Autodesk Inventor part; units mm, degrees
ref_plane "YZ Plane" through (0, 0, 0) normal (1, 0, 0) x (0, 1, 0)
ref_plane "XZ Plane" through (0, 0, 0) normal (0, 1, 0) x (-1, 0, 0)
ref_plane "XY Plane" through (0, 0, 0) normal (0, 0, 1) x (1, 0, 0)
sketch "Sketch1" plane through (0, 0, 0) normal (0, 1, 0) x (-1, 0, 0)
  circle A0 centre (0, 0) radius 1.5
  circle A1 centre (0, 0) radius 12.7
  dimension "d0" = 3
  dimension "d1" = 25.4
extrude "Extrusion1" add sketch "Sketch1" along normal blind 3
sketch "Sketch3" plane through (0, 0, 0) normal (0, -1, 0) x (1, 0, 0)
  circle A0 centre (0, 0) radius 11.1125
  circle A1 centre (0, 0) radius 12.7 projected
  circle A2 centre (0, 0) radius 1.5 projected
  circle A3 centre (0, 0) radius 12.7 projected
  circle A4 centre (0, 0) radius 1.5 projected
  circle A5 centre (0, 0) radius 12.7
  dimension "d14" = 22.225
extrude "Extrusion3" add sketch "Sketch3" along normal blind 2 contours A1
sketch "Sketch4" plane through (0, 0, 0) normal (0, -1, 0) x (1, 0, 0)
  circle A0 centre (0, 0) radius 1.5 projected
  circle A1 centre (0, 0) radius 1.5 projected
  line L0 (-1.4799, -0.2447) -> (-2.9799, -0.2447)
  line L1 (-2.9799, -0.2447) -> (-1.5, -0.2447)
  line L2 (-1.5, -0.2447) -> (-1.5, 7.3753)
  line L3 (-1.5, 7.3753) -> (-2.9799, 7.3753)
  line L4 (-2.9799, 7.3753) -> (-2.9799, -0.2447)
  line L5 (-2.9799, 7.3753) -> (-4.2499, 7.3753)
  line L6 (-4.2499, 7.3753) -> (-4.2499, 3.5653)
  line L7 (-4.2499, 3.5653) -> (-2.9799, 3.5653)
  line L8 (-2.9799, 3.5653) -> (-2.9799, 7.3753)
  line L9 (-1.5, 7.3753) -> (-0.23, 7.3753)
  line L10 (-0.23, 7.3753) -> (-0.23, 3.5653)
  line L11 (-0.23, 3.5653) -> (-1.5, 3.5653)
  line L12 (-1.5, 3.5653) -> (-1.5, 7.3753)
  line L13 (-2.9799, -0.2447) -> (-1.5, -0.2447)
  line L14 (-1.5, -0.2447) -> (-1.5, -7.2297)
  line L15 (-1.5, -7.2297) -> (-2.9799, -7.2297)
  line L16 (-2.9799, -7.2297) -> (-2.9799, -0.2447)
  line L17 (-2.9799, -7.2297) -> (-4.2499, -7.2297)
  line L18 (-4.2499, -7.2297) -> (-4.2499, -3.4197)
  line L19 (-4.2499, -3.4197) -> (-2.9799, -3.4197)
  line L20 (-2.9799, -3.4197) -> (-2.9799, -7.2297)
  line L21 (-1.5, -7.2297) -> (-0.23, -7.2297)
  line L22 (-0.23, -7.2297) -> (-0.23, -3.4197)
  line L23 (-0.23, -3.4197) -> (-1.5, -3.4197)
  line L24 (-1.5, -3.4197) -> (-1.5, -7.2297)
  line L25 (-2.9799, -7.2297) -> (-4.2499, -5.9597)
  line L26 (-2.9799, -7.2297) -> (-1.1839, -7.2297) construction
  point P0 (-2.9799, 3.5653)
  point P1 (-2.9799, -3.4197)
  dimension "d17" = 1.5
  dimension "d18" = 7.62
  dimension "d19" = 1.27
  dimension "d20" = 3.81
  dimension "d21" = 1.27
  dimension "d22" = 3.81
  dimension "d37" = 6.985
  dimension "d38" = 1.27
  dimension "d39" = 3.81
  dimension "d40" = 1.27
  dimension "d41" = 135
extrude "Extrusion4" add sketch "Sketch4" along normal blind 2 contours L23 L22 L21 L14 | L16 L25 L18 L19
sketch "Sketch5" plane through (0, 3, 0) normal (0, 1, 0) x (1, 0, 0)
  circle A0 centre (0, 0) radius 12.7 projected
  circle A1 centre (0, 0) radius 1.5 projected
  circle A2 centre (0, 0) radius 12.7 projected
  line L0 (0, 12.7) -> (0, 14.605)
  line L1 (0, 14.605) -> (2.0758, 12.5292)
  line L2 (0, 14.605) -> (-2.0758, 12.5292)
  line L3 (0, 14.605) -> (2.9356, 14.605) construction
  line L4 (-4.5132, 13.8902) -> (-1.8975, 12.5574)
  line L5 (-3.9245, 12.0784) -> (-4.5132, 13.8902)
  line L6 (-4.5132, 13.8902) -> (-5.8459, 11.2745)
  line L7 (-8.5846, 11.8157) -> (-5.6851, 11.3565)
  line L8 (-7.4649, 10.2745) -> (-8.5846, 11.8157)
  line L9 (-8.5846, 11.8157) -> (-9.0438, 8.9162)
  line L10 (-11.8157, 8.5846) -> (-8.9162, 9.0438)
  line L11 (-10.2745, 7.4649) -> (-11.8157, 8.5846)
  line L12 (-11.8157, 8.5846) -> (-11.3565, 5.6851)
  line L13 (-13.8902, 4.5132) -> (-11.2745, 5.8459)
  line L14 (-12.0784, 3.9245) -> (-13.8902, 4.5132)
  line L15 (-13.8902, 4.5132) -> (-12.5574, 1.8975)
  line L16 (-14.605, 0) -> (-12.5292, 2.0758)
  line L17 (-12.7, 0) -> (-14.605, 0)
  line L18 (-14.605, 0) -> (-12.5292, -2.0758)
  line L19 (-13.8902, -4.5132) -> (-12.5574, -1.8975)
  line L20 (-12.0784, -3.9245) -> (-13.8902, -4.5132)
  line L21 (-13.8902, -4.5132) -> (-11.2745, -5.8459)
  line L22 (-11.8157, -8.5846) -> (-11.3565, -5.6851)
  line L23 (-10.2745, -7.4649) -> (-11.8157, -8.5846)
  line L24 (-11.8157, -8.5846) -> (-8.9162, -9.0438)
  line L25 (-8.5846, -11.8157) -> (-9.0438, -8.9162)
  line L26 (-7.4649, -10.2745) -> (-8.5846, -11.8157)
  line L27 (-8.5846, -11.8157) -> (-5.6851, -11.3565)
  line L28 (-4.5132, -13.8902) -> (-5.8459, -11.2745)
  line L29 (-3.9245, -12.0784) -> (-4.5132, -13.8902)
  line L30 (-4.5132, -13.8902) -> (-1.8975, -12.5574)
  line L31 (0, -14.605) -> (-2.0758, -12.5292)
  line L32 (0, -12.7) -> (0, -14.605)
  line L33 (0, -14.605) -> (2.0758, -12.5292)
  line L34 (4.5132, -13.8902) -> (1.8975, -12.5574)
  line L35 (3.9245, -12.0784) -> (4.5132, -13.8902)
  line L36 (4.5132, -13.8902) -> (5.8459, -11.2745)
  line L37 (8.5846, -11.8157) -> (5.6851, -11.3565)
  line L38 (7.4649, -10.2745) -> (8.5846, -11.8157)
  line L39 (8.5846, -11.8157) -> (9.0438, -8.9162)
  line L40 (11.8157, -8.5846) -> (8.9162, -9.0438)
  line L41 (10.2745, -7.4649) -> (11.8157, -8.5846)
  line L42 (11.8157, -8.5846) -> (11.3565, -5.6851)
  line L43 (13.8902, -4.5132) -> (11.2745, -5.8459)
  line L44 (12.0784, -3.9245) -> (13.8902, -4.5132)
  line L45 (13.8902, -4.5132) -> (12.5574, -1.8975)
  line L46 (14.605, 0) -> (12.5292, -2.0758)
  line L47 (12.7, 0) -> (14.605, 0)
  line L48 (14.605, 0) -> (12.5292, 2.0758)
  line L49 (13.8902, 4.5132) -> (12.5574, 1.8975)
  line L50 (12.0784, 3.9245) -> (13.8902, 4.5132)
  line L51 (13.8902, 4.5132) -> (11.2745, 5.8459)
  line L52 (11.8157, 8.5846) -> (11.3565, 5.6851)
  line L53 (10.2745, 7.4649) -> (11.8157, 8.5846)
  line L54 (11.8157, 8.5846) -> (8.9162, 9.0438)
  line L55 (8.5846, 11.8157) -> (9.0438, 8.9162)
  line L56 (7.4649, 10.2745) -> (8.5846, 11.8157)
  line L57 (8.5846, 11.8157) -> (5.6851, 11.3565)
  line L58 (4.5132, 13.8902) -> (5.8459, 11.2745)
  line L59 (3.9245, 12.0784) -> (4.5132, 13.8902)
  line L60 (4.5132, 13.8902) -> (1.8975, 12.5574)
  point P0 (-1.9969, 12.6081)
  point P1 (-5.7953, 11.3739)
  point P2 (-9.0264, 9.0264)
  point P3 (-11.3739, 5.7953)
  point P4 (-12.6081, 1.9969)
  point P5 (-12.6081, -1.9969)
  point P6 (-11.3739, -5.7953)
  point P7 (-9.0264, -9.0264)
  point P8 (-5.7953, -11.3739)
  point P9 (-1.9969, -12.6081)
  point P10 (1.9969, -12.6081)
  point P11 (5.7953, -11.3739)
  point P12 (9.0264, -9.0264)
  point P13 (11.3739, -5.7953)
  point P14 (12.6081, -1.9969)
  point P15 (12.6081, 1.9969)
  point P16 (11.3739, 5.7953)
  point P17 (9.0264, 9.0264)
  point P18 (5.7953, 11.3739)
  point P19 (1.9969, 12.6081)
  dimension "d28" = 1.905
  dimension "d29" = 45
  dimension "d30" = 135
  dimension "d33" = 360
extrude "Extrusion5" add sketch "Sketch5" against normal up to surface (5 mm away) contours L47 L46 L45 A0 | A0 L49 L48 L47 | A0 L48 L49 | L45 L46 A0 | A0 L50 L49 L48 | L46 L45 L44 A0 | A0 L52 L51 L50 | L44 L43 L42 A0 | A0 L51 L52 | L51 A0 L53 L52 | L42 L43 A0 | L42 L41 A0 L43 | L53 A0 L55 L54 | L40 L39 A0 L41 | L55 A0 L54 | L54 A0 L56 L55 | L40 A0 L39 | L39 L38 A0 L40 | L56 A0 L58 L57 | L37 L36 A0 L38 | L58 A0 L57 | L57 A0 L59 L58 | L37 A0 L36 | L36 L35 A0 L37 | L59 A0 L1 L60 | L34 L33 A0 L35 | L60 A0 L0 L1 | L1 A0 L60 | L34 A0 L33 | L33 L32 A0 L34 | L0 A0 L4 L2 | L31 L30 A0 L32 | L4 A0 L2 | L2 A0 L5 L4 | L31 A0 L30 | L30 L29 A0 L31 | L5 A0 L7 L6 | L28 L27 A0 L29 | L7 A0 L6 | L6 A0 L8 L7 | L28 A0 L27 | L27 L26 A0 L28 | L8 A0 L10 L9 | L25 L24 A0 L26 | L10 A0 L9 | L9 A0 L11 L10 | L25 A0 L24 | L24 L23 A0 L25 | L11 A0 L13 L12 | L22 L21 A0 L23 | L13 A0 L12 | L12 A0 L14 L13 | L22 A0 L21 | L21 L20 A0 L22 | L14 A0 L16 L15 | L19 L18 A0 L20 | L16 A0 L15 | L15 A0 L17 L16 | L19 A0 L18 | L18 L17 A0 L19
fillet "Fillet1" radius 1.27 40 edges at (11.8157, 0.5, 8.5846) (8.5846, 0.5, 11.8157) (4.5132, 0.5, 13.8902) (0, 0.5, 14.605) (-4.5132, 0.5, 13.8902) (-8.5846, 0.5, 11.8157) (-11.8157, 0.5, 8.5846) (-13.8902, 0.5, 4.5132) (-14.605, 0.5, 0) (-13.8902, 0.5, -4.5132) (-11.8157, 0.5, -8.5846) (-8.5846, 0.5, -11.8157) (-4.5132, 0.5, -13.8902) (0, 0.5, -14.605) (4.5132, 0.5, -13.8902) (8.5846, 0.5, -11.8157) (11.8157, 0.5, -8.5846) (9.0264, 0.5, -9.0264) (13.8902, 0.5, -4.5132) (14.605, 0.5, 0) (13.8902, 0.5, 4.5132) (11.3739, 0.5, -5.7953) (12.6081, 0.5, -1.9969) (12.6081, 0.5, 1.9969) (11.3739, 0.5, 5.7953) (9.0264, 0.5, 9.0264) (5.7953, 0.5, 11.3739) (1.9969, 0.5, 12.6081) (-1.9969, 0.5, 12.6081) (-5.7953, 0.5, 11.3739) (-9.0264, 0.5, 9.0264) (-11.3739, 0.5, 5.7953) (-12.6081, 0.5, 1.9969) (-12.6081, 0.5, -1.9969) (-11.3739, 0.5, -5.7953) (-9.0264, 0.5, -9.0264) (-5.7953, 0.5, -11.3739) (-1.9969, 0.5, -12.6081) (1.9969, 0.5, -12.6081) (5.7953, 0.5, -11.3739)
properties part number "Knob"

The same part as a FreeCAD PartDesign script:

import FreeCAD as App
import Part
import Sketcher
from FreeCAD import Vector
Q = App.Units.Quantity


def edges_at(feature, points):
    """Names of the edges that pass closest to the given points."""
    edges = feature.Shape.Edges
    near = lambda p: min(range(len(edges)), key=lambda i: edges[i].distToShape(Part.Vertex(*p))[0])
    return sorted({f"Edge{near(p) + 1}" for p in points})


def add_polygon(sketch, points):
    """Adds a closed chain of lines whose ends are joined by coincident constraints."""
    first, n = sketch.GeometryCount, len(points)
    for a, b in zip(points, points[1:] + points[:1]):
        sketch.addGeometry(Part.LineSegment(App.Vector(*a, 0), App.Vector(*b, 0)), False)
    for i in range(n):
        sketch.addConstraint(Sketcher.Constraint("Coincident", first + i, 2, first + (i + 1) % n, 1))

doc = App.newDocument("Part")
params = doc.addObject("Spreadsheet::Sheet", "Params")
for row, (alias, value) in enumerate([
    ("sketch1_diameter", "1 in"),
    ("pad1_length", "0.1181102 in"),
    ("sketch2_diameter", "1 in"),
    ("sketch2_diameter2", "0.875 in"),
    ("pad2_length", "2 mm"),
    ("sketch3_width", "0.05 in"),
    ("sketch3_height", "0.15 in"),
    ("pad3_length", "2 mm"),
    ("sketch4_diameter", "1 in"),
    ("pad4_length", "5 mm"),
    ("fillet_radius", "0.05 in"),
], start=1):
    params.set(f"A{row}", alias)
    params.set(f"B{row}", "=" + value)
    params.setAlias(f"B{row}", alias)

body = doc.addObject("PartDesign::Body", "Body")

# Sketch on XZ plane
sketch1 = body.newObject("Sketcher::SketchObject", "Sketch")
sketch1.AttachmentSupport = (doc.getObject("XZ_Plane"), [""])
sketch1.MapMode = "FlatFace"
sketch1.addGeometry([
    Part.Circle(Vector(0, 0, 0), Vector(0, 0, 1), 12.7),
    Part.Circle(Vector(0, 0, 0), Vector(0, 0, 1), 1.5),
], False)
sketch1.addConstraint([
    Sketcher.Constraint("Coincident", 0, 3, -1, 1),
    Sketcher.Constraint("Coincident", 1, 3, -1, 1),
    Sketcher.Constraint("Diameter", 0, Q("1 in")),
    Sketcher.Constraint("Diameter", 1, Q("0.1181 in")),
])
sketch1.setExpression("Constraints[2]", "Params.sketch1_diameter")
pad1 = body.newObject("PartDesign::Pad", "Pad")
pad1.Profile = sketch1
pad1.setExpression("Length", "Params.pad1_length")
pad1.Reversed = True

# Sketch on XZ plane
sketch2 = body.newObject("Sketcher::SketchObject", "Sketch001")
sketch2.AttachmentSupport = (doc.getObject("XZ_Plane"), [""])
sketch2.MapMode = "FlatFace"
sketch2.addGeometry([
    Part.Circle(Vector(0, 0, 0), Vector(0, 0, 1), 12.7),
    Part.Circle(Vector(0, 0, 0), Vector(0, 0, 1), 11.1125),
], False)
sketch2.addConstraint([
    Sketcher.Constraint("Coincident", 0, 3, -1, 1),
    Sketcher.Constraint("Coincident", 1, 3, -1, 1),
    Sketcher.Constraint("Diameter", 0, Q("1 in")),
    Sketcher.Constraint("Diameter", 1, Q("0.875 in")),
])
sketch2.setExpression("Constraints[2]", "Params.sketch2_diameter")
sketch2.setExpression("Constraints[3]", "Params.sketch2_diameter2")
pad2 = body.newObject("PartDesign::Pad", "Pad001")
pad2.Profile = sketch2
pad2.setExpression("Length", "Params.pad2_length")

# Sketch on XZ plane
sketch3 = body.newObject("Sketcher::SketchObject", "Sketch002")
sketch3.AttachmentSupport = (doc.getObject("XZ_Plane"), [""])
sketch3.MapMode = "FlatFace"
add_polygon(sketch3, [(-0.23, -3.4197), (-1.5, -3.4197), (-1.5, -7.2297), (-0.23, -7.2297)])  # lines 0-3
add_polygon(sketch3, [(-2.9799, -7.2297), (-2.9799, -3.4197), (-4.2499, -3.4197), (-4.2499, -5.9597)])  # lines 4-7
sketch3.addConstraint([
    Sketcher.Constraint("Horizontal", 0),
    Sketcher.Constraint("Vertical", 1),
    Sketcher.Constraint("Horizontal", 2),
    Sketcher.Constraint("Vertical", 3),
    Sketcher.Constraint("Vertical", 4),
    Sketcher.Constraint("Horizontal", 5),
    Sketcher.Constraint("Vertical", 6),
    Sketcher.Constraint("Horizontal", 3, 2, 4, 2),
    Sketcher.Constraint("Horizontal", 2, 2, 7, 2),
    Sketcher.Constraint("Equal", 2, 5),
    Sketcher.Constraint("DistanceX", 0, 2, 0, 1, Q("0.05 in")),
    Sketcher.Constraint("DistanceY", 1, 2, 1, 1, Q("0.15 in")),
    Sketcher.Constraint("DistanceY", 1, 2, 6, 2, Q("0.05 in")),
    Sketcher.Constraint("DistanceX", 0, 2, -1, 1, 1.5),
    Sketcher.Constraint("DistanceY", 0, 2, -1, 1, 3.4197),
    Sketcher.Constraint("DistanceX", 4, 2, -1, 1, 2.98),
])
sketch3.setExpression("Constraints[18]", "Params.sketch3_width")
sketch3.setExpression("Constraints[19]", "Params.sketch3_height")
pad3 = body.newObject("PartDesign::Pad", "Pad002")
pad3.Profile = sketch3
pad3.setExpression("Length", "Params.pad3_length")

# Sketch on XZ plane
sketch4 = body.newObject("Sketcher::SketchObject", "Sketch003")
sketch4.AttachmentSupport = (doc.getObject("XZ_Plane"), [""])
sketch4.MapMode = "FlatFace"
sketch4.AttachmentOffset = App.Placement(Vector(0, 0, -0.1181102 * 25.4), App.Rotation())
add_polygon(sketch4, [(12.608066, 1.996934), (14.605, 0), (12.608066, -1.996934), (13.8902, -4.5132), (11.373942, -5.795234), (11.8157, -8.5846), (9.026355, -9.026355), (8.5846, -11.8157), (5.795234, -11.373942), (4.5132, -13.8902), (1.996934, -12.608066), (0, -14.605), (-1.996934, -12.608066), (-4.5132, -13.8902), (-5.795234, -11.373942), (-8.5846, -11.8157), (-9.026355, -9.026355), (-11.8157, -8.5846), (-11.373942, -5.795234), (-13.8902, -4.5132), (-12.608066, -1.996934), (-14.605, 0), (-12.608066, 1.996934), (-13.8902, 4.5132), (-11.373942, 5.795234), (-11.8157, 8.5846), (-9.026355, 9.026355), (-8.5846, 11.8157), (-5.795234, 11.373942), (-4.5132, 13.8902), (-1.996934, 12.608066), (0, 14.605), (1.996934, 12.608066), (4.5132, 13.8902), (5.795234, 11.373942), (8.5846, 11.8157), (9.026355, 9.026355), (11.8157, 8.5846), (11.373942, 5.795234), (13.8902, 4.5132)])  # lines 0-39
sketch4.addGeometry(Part.Circle(Vector(0, 0, 0), Vector(0, 0, 1), 12.7), False)  # 40
sketch4.addConstraint([
    Sketcher.Constraint("Coincident", 40, 3, -1, 1),
    Sketcher.Constraint("Symmetric", 0, 2, 20, 2, -1, 1),
    Sketcher.Constraint("Symmetric", 1, 2, 21, 2, -1, 1),
    Sketcher.Constraint("Symmetric", 2, 2, 22, 2, -1, 1),
    Sketcher.Constraint("Symmetric", 3, 2, 23, 2, -1, 1),
    Sketcher.Constraint("Symmetric", 4, 2, 24, 2, -1, 1),
    Sketcher.Constraint("Symmetric", 5, 2, 25, 2, -1, 1),
    Sketcher.Constraint("Symmetric", 6, 2, 26, 2, -1, 1),
    Sketcher.Constraint("Symmetric", 7, 2, 27, 2, -1, 1),
    Sketcher.Constraint("Symmetric", 8, 2, 28, 2, -1, 1),
    Sketcher.Constraint("Symmetric", 9, 2, 29, 2, -1, 1),
    Sketcher.Constraint("Symmetric", 10, 2, 30, 2, -1, 1),
    Sketcher.Constraint("Symmetric", 11, 2, 31, 2, -1, 1),
    Sketcher.Constraint("Symmetric", 12, 2, 32, 2, -1, 1),
    Sketcher.Constraint("Symmetric", 13, 2, 33, 2, -1, 1),
    Sketcher.Constraint("Symmetric", 14, 2, 34, 2, -1, 1),
    Sketcher.Constraint("Symmetric", 15, 2, 35, 2, -1, 1),
    Sketcher.Constraint("Symmetric", 16, 2, 36, 2, -1, 1),
    Sketcher.Constraint("Symmetric", 17, 2, 37, 2, -1, 1),
    Sketcher.Constraint("Symmetric", 18, 2, 38, 2, -1, 1),
    Sketcher.Constraint("Symmetric", 19, 2, 39, 2, -1, 1),
    Sketcher.Constraint("Symmetric", 9, 2, 11, 2, -2),
    Sketcher.Constraint("Symmetric", 8, 2, 12, 2, -2),
    Sketcher.Constraint("Symmetric", 7, 2, 13, 2, -2),
    Sketcher.Constraint("Symmetric", 6, 2, 14, 2, -2),
    Sketcher.Constraint("Symmetric", 5, 2, 15, 2, -2),
    Sketcher.Constraint("Symmetric", 4, 2, 16, 2, -2),
    Sketcher.Constraint("Symmetric", 3, 2, 17, 2, -2),
    Sketcher.Constraint("Symmetric", 2, 2, 18, 2, -2),
    Sketcher.Constraint("Symmetric", 1, 2, 19, 2, -2),
    Sketcher.Constraint("PointOnObject", 0, 2, -1),
    Sketcher.Constraint("PointOnObject", 10, 2, -2),
    Sketcher.Constraint("Perpendicular", 0, 1),
    Sketcher.Constraint("Perpendicular", 2, 3),
    Sketcher.Constraint("Perpendicular", 4, 5),
    Sketcher.Constraint("Perpendicular", 6, 7),
    Sketcher.Constraint("Perpendicular", 8, 9),
    Sketcher.Constraint("Parallel", 1, 10),
    Sketcher.Constraint("Parallel", 3, 12),
    Sketcher.Constraint("Parallel", 5, 14),
    Sketcher.Constraint("Equal", 1, 2),
    Sketcher.Constraint("Equal", 2, 3),
    Sketcher.Constraint("Equal", 3, 4),
    Sketcher.Constraint("Equal", 4, 5),
    Sketcher.Constraint("Equal", 5, 6),
    Sketcher.Constraint("Equal", 6, 7),
    Sketcher.Constraint("Equal", 7, 8),
    Sketcher.Constraint("Equal", 8, 9),
    Sketcher.Constraint("Equal", 9, 10),
    Sketcher.Constraint("Diameter", 40, Q("1 in")),
    Sketcher.Constraint("Angle", 2, Q("-62.9994 deg")),
    Sketcher.Constraint("Angle", 4, Q("-81.0007 deg")),
    Sketcher.Constraint("DistanceX", -1, 1, 0, 2, Q("0.575 in")),
])
sketch4.setExpression("Constraints[89]", "Params.sketch4_diameter")
pad4 = body.newObject("PartDesign::Pad", "Pad003")
pad4.Profile = sketch4
pad4.setExpression("Length", "Params.pad4_length")
doc.recompute()

fillet = body.newObject("PartDesign::Fillet", "Fillet")
fillet.Base = (pad4, edges_at(pad4, [
    (11.816, 0.5, 8.585),
    (8.585, 0.5, 11.816),
    (4.513, 0.5, 13.89),
    (0, 0.5, 14.605),
    (-4.513, 0.5, 13.89),
    (-8.585, 0.5, 11.816),
    (-11.816, 0.5, 8.585),
    (-13.89, 0.5, 4.513),
    (-14.605, 0.5, 0),
    (-13.89, 0.5, -4.513),
    (-11.816, 0.5, -8.585),
    (-8.585, 0.5, -11.816),
    (-4.513, 0.5, -13.89),
    (0, 0.5, -14.605),
    (4.513, 0.5, -13.89),
    (8.585, 0.5, -11.816),
    (11.816, 0.5, -8.585),
    (9.026, 0.5, -9.026),
    (13.89, 0.5, -4.513),
    (14.605, 0.5, 0),
    (13.89, 0.5, 4.513),
    (11.374, 0.5, -5.795),
    (12.608, 0.5, -1.997),
    (12.608, 0.5, 1.997),
    (11.374, 0.5, 5.795),
    (9.026, 0.5, 9.026),
    (5.795, 0.5, 11.374),
    (1.997, 0.5, 12.608),
    (-1.997, 0.5, 12.608),
    (-5.795, 0.5, 11.374),
    (-9.026, 0.5, 9.026),
    (-11.374, 0.5, 5.795),
    (-12.608, 0.5, 1.997),
    (-12.608, 0.5, -1.997),
    (-11.374, 0.5, -5.795),
    (-9.026, 0.5, -9.026),
    (-5.795, 0.5, -11.374),
    (-1.997, 0.5, -12.608),
    (1.997, 0.5, -12.608),
    (5.795, 0.5, -11.374),
]))
fillet.setExpression("Radius", "Params.fillet_radius")

doc.recompute()
